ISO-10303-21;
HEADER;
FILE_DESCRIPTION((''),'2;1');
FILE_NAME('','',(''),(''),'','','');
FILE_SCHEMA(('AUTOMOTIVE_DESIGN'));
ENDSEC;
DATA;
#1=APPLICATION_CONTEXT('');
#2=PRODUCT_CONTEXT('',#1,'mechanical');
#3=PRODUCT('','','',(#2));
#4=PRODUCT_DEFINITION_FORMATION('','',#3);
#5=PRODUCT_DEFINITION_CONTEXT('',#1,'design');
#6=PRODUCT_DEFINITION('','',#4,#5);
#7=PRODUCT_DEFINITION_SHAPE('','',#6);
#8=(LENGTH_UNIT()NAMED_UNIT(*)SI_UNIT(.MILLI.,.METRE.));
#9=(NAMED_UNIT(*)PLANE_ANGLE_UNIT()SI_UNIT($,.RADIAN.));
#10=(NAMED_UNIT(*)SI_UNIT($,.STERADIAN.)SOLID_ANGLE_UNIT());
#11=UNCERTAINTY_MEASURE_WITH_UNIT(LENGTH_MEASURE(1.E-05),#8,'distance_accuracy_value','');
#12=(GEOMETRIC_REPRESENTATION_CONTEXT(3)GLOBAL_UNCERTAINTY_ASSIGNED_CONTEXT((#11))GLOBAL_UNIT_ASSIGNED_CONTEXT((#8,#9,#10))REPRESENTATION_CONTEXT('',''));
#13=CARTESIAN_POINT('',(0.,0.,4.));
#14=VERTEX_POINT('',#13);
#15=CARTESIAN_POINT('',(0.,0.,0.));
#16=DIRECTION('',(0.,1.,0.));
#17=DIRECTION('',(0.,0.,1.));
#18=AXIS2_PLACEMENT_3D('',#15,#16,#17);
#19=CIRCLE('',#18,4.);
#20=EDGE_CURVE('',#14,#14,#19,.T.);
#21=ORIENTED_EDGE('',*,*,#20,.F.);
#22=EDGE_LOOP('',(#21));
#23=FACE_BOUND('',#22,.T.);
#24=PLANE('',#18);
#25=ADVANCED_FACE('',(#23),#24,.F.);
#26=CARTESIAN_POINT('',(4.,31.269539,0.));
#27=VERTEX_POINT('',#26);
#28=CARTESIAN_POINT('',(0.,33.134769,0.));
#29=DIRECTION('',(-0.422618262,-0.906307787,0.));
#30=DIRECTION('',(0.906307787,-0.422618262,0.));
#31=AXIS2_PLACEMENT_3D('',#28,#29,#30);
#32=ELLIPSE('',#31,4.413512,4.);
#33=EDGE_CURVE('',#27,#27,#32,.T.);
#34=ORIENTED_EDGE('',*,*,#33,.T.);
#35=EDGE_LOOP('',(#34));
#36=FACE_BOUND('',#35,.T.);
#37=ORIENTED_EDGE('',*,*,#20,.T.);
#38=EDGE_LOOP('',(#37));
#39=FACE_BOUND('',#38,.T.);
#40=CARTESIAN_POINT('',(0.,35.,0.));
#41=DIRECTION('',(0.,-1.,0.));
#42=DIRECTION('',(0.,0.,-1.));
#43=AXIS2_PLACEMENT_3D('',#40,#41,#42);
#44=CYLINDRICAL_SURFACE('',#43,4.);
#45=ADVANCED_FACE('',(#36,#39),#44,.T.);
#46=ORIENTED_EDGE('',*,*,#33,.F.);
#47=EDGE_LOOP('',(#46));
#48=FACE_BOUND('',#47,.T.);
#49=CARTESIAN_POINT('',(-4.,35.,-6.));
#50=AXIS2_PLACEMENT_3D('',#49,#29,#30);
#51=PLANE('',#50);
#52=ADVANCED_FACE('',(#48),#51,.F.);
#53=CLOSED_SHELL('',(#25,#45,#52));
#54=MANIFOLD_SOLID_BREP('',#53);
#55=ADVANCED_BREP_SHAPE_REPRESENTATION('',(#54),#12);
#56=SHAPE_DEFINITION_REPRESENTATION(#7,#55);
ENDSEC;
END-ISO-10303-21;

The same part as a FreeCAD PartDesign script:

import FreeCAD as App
import Part
import Sketcher
Q = App.Units.Quantity


def add_polygon(sketch, points):
    """Adds a closed chain of lines whose ends are joined by coincident constraints."""
    first, n = sketch.GeometryCount, len(points)
    for a, b in zip(points, points[1:] + points[:1]):
        sketch.addGeometry(Part.LineSegment(App.Vector(*a, 0), App.Vector(*b, 0)), False)
    for i in range(n):
        sketch.addConstraint(Sketcher.Constraint("Coincident", first + i, 2, first + (i + 1) % n, 1))

doc = App.newDocument("Part")
body = doc.addObject("PartDesign::Body", "Body")

# Sketch on XZ plane
sketch1 = doc.addObject("Sketcher::SketchObject", "Sketch")
body.addObject(sketch1)
sketch1.AttachmentSupport = (doc.XZ_Plane, [""])
sketch1.MapMode = "FlatFace"
sketch1.addGeometry(Part.Circle(App.Vector(0, 0, 0), App.Vector(0, 0, 1), 4), False)
sketch1.addConstraint(Sketcher.Constraint("Coincident", 0, 3, -1, 1))
sketch1.addConstraint(Sketcher.Constraint("Diameter", 0, Q("8 mm")))
pad1 = doc.addObject("PartDesign::Pad", "Pad")
body.addObject(pad1)
pad1.Profile = sketch1
pad1.Length = 35
pad1.Reversed = True

# Sketch on XY plane
sketch2 = doc.addObject("Sketcher::SketchObject", "Sketch001")
body.addObject(sketch2)
sketch2.AttachmentSupport = (doc.XY_Plane, [""])
sketch2.MapMode = "FlatFace"
sketch2.AttachmentOffset = App.Placement(App.Vector(0, 0, 4), App.Rotation())
add_polygon(sketch2, [(-4, 35), (4, 31.3), (4, 35)])  # lines 0-2
sketch2.addConstraint(Sketcher.Constraint("Vertical", 1))
sketch2.addConstraint(Sketcher.Constraint("Horizontal", 2))
sketch2.addConstraint(Sketcher.Constraint("DistanceX", 2, 2, 2, 1, Q("8 mm")))
sketch2.addConstraint(Sketcher.Constraint("Angle", 0, Q("-25 deg")))
sketch2.addConstraint(Sketcher.Constraint("DistanceX", -1, 1, 0, 2, Q("4 mm")))
sketch2.addConstraint(Sketcher.Constraint("DistanceY", -1, 1, 1, 2, Q("35 mm")))
pocket1 = doc.addObject("PartDesign::Pocket", "Pocket")
body.addObject(pocket1)
pocket1.Profile = sketch2
pocket1.Length = 10

doc.recompute()
